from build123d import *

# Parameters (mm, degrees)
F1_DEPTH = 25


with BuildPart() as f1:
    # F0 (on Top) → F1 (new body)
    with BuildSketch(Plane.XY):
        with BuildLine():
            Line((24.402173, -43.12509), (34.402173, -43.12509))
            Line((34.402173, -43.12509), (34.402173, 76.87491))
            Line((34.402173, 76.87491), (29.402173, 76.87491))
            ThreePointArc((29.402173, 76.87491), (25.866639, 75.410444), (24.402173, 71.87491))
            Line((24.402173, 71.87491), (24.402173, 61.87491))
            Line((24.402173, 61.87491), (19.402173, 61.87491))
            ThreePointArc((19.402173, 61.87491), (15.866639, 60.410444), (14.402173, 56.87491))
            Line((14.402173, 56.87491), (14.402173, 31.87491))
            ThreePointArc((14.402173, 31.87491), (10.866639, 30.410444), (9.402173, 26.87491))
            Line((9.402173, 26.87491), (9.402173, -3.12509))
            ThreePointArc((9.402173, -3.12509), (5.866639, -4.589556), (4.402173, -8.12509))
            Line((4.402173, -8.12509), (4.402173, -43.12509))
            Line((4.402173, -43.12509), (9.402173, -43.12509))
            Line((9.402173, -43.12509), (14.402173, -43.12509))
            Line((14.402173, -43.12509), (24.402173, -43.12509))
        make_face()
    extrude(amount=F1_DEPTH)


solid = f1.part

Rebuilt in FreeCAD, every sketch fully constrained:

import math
import FreeCAD as App
import Part
import Sketcher

V = App.Vector

doc = App.newDocument("Part")
body = doc.addObject("PartDesign::Body", "Body")

sketch1 = doc.addObject("Sketcher::SketchObject", "Sketch")
body.addObject(sketch1)
sketch1.AttachmentSupport = (doc.XY_Plane, [""])
sketch1.MapMode = "FlatFace"
sketch1.addGeometry(Part.LineSegment(V(34.402173, -43.12509, 0), V(34.402173, 76.87491, 0)), False)
sketch1.addGeometry(Part.LineSegment(V(34.402173, 76.87491, 0), V(29.402173, 76.87491, 0)), False)
sketch1.addGeometry(Part.ArcOfCircle(Part.Circle(V(29.402173, 71.87491, 0), V(0, 0, 1), 5), math.radians(89.999996), math.radians(180.000004)), False)
sketch1.addGeometry(Part.LineSegment(V(24.402173, 71.87491, 0), V(24.402173, 61.87491, 0)), False)
sketch1.addGeometry(Part.LineSegment(V(24.402173, 61.87491, 0), V(19.402173, 61.87491, 0)), False)
sketch1.addGeometry(Part.ArcOfCircle(Part.Circle(V(19.402173, 56.87491, 0), V(0, 0, 1), 5), math.radians(89.999996), math.radians(180.000004)), False)
sketch1.addGeometry(Part.LineSegment(V(14.402173, 56.87491, 0), V(14.402173, 31.87491, 0)), False)
sketch1.addGeometry(Part.ArcOfCircle(Part.Circle(V(14.402173, 26.87491, 0), V(0, 0, 1), 5), math.radians(89.999996), math.radians(180.000004)), False)
sketch1.addGeometry(Part.LineSegment(V(9.402173, 26.87491, 0), V(9.402173, -3.12509, 0)), False)
sketch1.addGeometry(Part.ArcOfCircle(Part.Circle(V(9.402173, -8.12509, 0), V(0, 0, 1), 5), math.radians(89.999996), math.radians(180.000004)), False)
sketch1.addGeometry(Part.LineSegment(V(4.402173, -8.12509, 0), V(4.402173, -43.12509, 0)), False)
sketch1.addGeometry(Part.LineSegment(V(4.402173, -43.12509, 0), V(34.402173, -43.12509, 0)), False)
sketch1.addConstraint(Sketcher.Constraint("Coincident", 0, 2, 1, 1))
sketch1.addConstraint(Sketcher.Constraint("Tangent", 1, 2, 2, 1))
sketch1.addConstraint(Sketcher.Constraint("Tangent", 2, 2, 3, 1))
sketch1.addConstraint(Sketcher.Constraint("Coincident", 3, 2, 4, 1))
sketch1.addConstraint(Sketcher.Constraint("Tangent", 4, 2, 5, 1))
sketch1.addConstraint(Sketcher.Constraint("Tangent", 5, 2, 6, 1))
sketch1.addConstraint(Sketcher.Constraint("Coincident", 6, 2, 7, 1))
sketch1.addConstraint(Sketcher.Constraint("Tangent", 7, 2, 8, 1))
sketch1.addConstraint(Sketcher.Constraint("Coincident", 8, 2, 9, 1))
sketch1.addConstraint(Sketcher.Constraint("Tangent", 9, 2, 10, 1))
sketch1.addConstraint(Sketcher.Constraint("Coincident", 10, 2, 11, 1))
sketch1.addConstraint(Sketcher.Constraint("Coincident", 11, 2, 0, 1))
sketch1.addConstraint(Sketcher.Constraint("Vertical", 0))
sketch1.addConstraint(Sketcher.Constraint("Horizontal", 1))
sketch1.addConstraint(Sketcher.Constraint("Vertical", 3))
sketch1.addConstraint(Sketcher.Constraint("Horizontal", 4))
sketch1.addConstraint(Sketcher.Constraint("Vertical", 6))
sketch1.addConstraint(Sketcher.Constraint("Vertical", 8))
sketch1.addConstraint(Sketcher.Constraint("Vertical", 10))
sketch1.addConstraint(Sketcher.Constraint("Horizontal", 11))
sketch1.addConstraint(Sketcher.Constraint("Equal", 2, 5))
sketch1.addConstraint(Sketcher.Constraint("Equal", 5, 7))
sketch1.addConstraint(Sketcher.Constraint("Equal", 7, 9))
sketch1.addConstraint(Sketcher.Constraint("Vertical", 7, 3, 5, 2))
sketch1.addConstraint(Sketcher.Constraint("Vertical", 9, 3, 7, 2))
sketch1.addConstraint(Sketcher.Constraint("Equal", 1, 4))
sketch1.addConstraint(Sketcher.Constraint("Equal", 11, 8))
sketch1.addConstraint(Sketcher.Constraint("Radius", 2, 5.0))
sketch1.addConstraint(Sketcher.Constraint("DistanceX", 1, 2, 1, 1, 5.0))
sketch1.addConstraint(Sketcher.Constraint("DistanceY", 0, 1, 0, 2, 120.0))
sketch1.addConstraint(Sketcher.Constraint("DistanceY", 3, 2, 3, 1, 10.0))
sketch1.addConstraint(Sketcher.Constraint("DistanceY", 6, 2, 6, 1, 25.0))
sketch1.addConstraint(Sketcher.Constraint("DistanceY", -1, 1, 2, 3, 71.87491))
sketch1.addConstraint(Sketcher.Constraint("DistanceX", -1, 1, 2, 3, 29.402173))
pad1 = doc.addObject("PartDesign::Pad", "Pad")
body.addObject(pad1)
pad1.Profile = sketch1
pad1.Length = 25

doc.recompute()
